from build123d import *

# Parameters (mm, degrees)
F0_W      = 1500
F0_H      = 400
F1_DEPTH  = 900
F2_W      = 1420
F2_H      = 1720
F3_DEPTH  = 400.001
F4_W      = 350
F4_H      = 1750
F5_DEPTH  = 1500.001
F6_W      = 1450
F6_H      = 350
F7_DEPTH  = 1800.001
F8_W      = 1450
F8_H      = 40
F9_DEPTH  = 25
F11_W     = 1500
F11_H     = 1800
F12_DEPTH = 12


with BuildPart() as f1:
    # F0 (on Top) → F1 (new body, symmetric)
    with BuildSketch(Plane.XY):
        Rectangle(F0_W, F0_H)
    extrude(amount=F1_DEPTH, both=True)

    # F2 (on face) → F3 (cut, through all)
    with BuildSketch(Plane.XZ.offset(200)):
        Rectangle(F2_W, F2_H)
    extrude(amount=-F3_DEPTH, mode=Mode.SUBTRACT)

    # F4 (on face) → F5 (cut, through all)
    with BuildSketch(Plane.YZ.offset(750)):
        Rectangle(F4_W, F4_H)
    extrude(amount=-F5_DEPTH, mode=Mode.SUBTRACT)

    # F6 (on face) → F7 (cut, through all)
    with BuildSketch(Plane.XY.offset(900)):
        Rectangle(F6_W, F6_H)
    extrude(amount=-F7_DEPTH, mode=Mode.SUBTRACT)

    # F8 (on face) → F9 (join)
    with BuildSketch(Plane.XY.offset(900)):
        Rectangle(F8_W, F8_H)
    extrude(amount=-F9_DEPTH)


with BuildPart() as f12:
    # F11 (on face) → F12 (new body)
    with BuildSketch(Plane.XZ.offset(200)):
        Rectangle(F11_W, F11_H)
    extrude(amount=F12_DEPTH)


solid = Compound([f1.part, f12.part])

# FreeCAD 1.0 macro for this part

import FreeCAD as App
import Part
import Sketcher
Q = App.Units.Quantity

doc = App.newDocument("Part")
params = doc.addObject("Spreadsheet::Sheet", "Params")
for row, (alias, value) in enumerate([
    ("sketch1_width", "1500 mm"),
    ("sketch1_height", "400 mm"),
    ("pad1_length", "1800 mm"),
    ("sketch2_width", "1420 mm"),
    ("sketch2_height", "1720 mm"),
    ("sketch3_width", "350 mm"),
    ("sketch3_height", "1750 mm"),
    ("sketch4_width", "1450 mm"),
    ("sketch4_height", "350 mm"),
    ("sketch5_width", "1450 mm"),
    ("sketch5_height", "40 mm"),
    ("pad2_length", "25 mm"),
    ("sketch6_width", "1500 mm"),
    ("sketch6_height", "1800 mm"),
    ("pad3_length", "12 mm"),
], start=1):
    params.set(f"A{row}", alias)
    params.set(f"B{row}", "=" + value)
    params.setAlias(f"B{row}", alias)

body = doc.addObject("PartDesign::Body", "Body")

sketch1 = body.newObject("Sketcher::SketchObject", "Sketch")
sketch1.AttachmentSupport = (doc.getObject("XY_Plane"), [""])
sketch1.MapMode = "FlatFace"
sketch1.addGeometry([
    Part.LineSegment(App.Vector(-750, 200, 0), App.Vector(-750, -200, 0)),
    Part.LineSegment(App.Vector(-750, -200, 0), App.Vector(750, -200, 0)),
    Part.LineSegment(App.Vector(750, -200, 0), App.Vector(750, 200, 0)),
    Part.LineSegment(App.Vector(750, 200, 0), App.Vector(-750, 200, 0)),
], False)
sketch1.addConstraint([
    Sketcher.Constraint("Coincident", 0, 2, 1, 1),
    Sketcher.Constraint("Coincident", 1, 2, 2, 1),
    Sketcher.Constraint("Coincident", 2, 2, 3, 1),
    Sketcher.Constraint("Coincident", 3, 2, 0, 1),
    Sketcher.Constraint("Vertical", 0),
    Sketcher.Constraint("Horizontal", 1),
    Sketcher.Constraint("Vertical", 2),
    Sketcher.Constraint("Horizontal", 3),
    Sketcher.Constraint("Symmetric", 0, 2, 2, 2, -1, 1),
    Sketcher.Constraint("DistanceX", 1, 1, 1, 2, Q("1500 mm")),
    Sketcher.Constraint("DistanceY", 0, 2, 0, 1, Q("400 mm")),
])
sketch1.setExpression("Constraints[9]", "Params.sketch1_width")
sketch1.setExpression("Constraints[10]", "Params.sketch1_height")
pad1 = body.newObject("PartDesign::Pad", "Pad")
pad1.Profile = sketch1
pad1.setExpression("Length", "Params.pad1_length")
pad1.Midplane = True

sketch2 = body.newObject("Sketcher::SketchObject", "Sketch001")
sketch2.AttachmentSupport = (doc.getObject("XZ_Plane"), [""])
sketch2.MapMode = "FlatFace"
sketch2.AttachmentOffset = App.Placement(App.Vector(0, 0, 200), App.Rotation())
sketch2.addGeometry([
    Part.LineSegment(App.Vector(-710, 860, 0), App.Vector(-710, -860, 0)),
    Part.LineSegment(App.Vector(-710, -860, 0), App.Vector(710, -860, 0)),
    Part.LineSegment(App.Vector(710, -860, 0), App.Vector(710, 860, 0)),
    Part.LineSegment(App.Vector(710, 860, 0), App.Vector(-710, 860, 0)),
], False)
sketch2.addConstraint([
    Sketcher.Constraint("Coincident", 0, 2, 1, 1),
    Sketcher.Constraint("Coincident", 1, 2, 2, 1),
    Sketcher.Constraint("Coincident", 2, 2, 3, 1),
    Sketcher.Constraint("Coincident", 3, 2, 0, 1),
    Sketcher.Constraint("Vertical", 0),
    Sketcher.Constraint("Horizontal", 1),
    Sketcher.Constraint("Vertical", 2),
    Sketcher.Constraint("Horizontal", 3),
    Sketcher.Constraint("Symmetric", 0, 2, 2, 2, -1, 1),
    Sketcher.Constraint("DistanceX", 1, 1, 1, 2, Q("1420 mm")),
    Sketcher.Constraint("DistanceY", 0, 2, 0, 1, Q("1720 mm")),
])
sketch2.setExpression("Constraints[9]", "Params.sketch2_width")
sketch2.setExpression("Constraints[10]", "Params.sketch2_height")
pocket1 = body.newObject("PartDesign::Pocket", "Pocket")
pocket1.Profile = sketch2
pocket1.Type = "ThroughAll"

sketch3 = body.newObject("Sketcher::SketchObject", "Sketch002")
sketch3.AttachmentSupport = (doc.getObject("YZ_Plane"), [""])
sketch3.MapMode = "FlatFace"
sketch3.AttachmentOffset = App.Placement(App.Vector(0, 0, 750), App.Rotation())
sketch3.addGeometry([
    Part.LineSegment(App.Vector(-175, 875, 0), App.Vector(-175, -875, 0)),
    Part.LineSegment(App.Vector(-175, -875, 0), App.Vector(175, -875, 0)),
    Part.LineSegment(App.Vector(175, -875, 0), App.Vector(175, 875, 0)),
    Part.LineSegment(App.Vector(175, 875, 0), App.Vector(-175, 875, 0)),
], False)
sketch3.addConstraint([
    Sketcher.Constraint("Coincident", 0, 2, 1, 1),
    Sketcher.Constraint("Coincident", 1, 2, 2, 1),
    Sketcher.Constraint("Coincident", 2, 2, 3, 1),
    Sketcher.Constraint("Coincident", 3, 2, 0, 1),
    Sketcher.Constraint("Vertical", 0),
    Sketcher.Constraint("Horizontal", 1),
    Sketcher.Constraint("Vertical", 2),
    Sketcher.Constraint("Horizontal", 3),
    Sketcher.Constraint("Symmetric", 0, 2, 2, 2, -1, 1),
    Sketcher.Constraint("DistanceX", 1, 1, 1, 2, Q("350 mm")),
    Sketcher.Constraint("DistanceY", 0, 2, 0, 1, Q("1750 mm")),
])
sketch3.setExpression("Constraints[9]", "Params.sketch3_width")
sketch3.setExpression("Constraints[10]", "Params.sketch3_height")
pocket2 = body.newObject("PartDesign::Pocket", "Pocket001")
pocket2.Profile = sketch3
pocket2.Type = "ThroughAll"

sketch4 = body.newObject("Sketcher::SketchObject", "Sketch003")
sketch4.AttachmentSupport = (doc.getObject("XY_Plane"), [""])
sketch4.MapMode = "FlatFace"
sketch4.AttachmentOffset = App.Placement(App.Vector(0, 0, 900), App.Rotation())
sketch4.addGeometry([
    Part.LineSegment(App.Vector(-725, 175, 0), App.Vector(-725, -175, 0)),
    Part.LineSegment(App.Vector(-725, -175, 0), App.Vector(725, -175, 0)),
    Part.LineSegment(App.Vector(725, -175, 0), App.Vector(725, 175, 0)),
    Part.LineSegment(App.Vector(725, 175, 0), App.Vector(-725, 175, 0)),
], False)
sketch4.addConstraint([
    Sketcher.Constraint("Coincident", 0, 2, 1, 1),
    Sketcher.Constraint("Coincident", 1, 2, 2, 1),
    Sketcher.Constraint("Coincident", 2, 2, 3, 1),
    Sketcher.Constraint("Coincident", 3, 2, 0, 1),
    Sketcher.Constraint("Vertical", 0),
    Sketcher.Constraint("Horizontal", 1),
    Sketcher.Constraint("Vertical", 2),
    Sketcher.Constraint("Horizontal", 3),
    Sketcher.Constraint("Symmetric", 0, 2, 2, 2, -1, 1),
    Sketcher.Constraint("DistanceX", 1, 1, 1, 2, Q("1450 mm")),
    Sketcher.Constraint("DistanceY", 0, 2, 0, 1, Q("350 mm")),
])
sketch4.setExpression("Constraints[9]", "Params.sketch4_width")
sketch4.setExpression("Constraints[10]", "Params.sketch4_height")
pocket3 = body.newObject("PartDesign::Pocket", "Pocket002")
pocket3.Profile = sketch4
pocket3.Type = "ThroughAll"

sketch5 = body.newObject("Sketcher::SketchObject", "Sketch004")
sketch5.AttachmentSupport = (doc.getObject("XY_Plane"), [""])
sketch5.MapMode = "FlatFace"
sketch5.AttachmentOffset = App.Placement(App.Vector(0, 0, 900), App.Rotation())
sketch5.addGeometry([
    Part.LineSegment(App.Vector(-725, 20, 0), App.Vector(-725, -20, 0)),
    Part.LineSegment(App.Vector(-725, -20, 0), App.Vector(725, -20, 0)),
    Part.LineSegment(App.Vector(725, -20, 0), App.Vector(725, 20, 0)),
    Part.LineSegment(App.Vector(725, 20, 0), App.Vector(-725, 20, 0)),
], False)
sketch5.addConstraint([
    Sketcher.Constraint("Coincident", 0, 2, 1, 1),
    Sketcher.Constraint("Coincident", 1, 2, 2, 1),
    Sketcher.Constraint("Coincident", 2, 2, 3, 1),
    Sketcher.Constraint("Coincident", 3, 2, 0, 1),
    Sketcher.Constraint("Vertical", 0),
    Sketcher.Constraint("Horizontal", 1),
    Sketcher.Constraint("Vertical", 2),
    Sketcher.Constraint("Horizontal", 3),
    Sketcher.Constraint("Symmetric", 0, 2, 2, 2, -1, 1),
    Sketcher.Constraint("DistanceX", 1, 1, 1, 2, Q("1450 mm")),
    Sketcher.Constraint("DistanceY", 0, 2, 0, 1, Q("40 mm")),
])
sketch5.setExpression("Constraints[9]", "Params.sketch5_width")
sketch5.setExpression("Constraints[10]", "Params.sketch5_height")
pad2 = body.newObject("PartDesign::Pad", "Pad001")
pad2.Profile = sketch5
pad2.setExpression("Length", "Params.pad2_length")
pad2.Reversed = True
body2 = doc.addObject("PartDesign::Body", "Body001")

sketch6 = body2.newObject("Sketcher::SketchObject", "Sketch005")
sketch6.AttachmentSupport = (doc.getObject("XZ_Plane001"), [""])
sketch6.MapMode = "FlatFace"
sketch6.AttachmentOffset = App.Placement(App.Vector(0, 0, 200), App.Rotation())
sketch6.addGeometry([
    Part.LineSegment(App.Vector(-750, 900, 0), App.Vector(-750, -900, 0)),
    Part.LineSegment(App.Vector(-750, -900, 0), App.Vector(750, -900, 0)),
    Part.LineSegment(App.Vector(750, -900, 0), App.Vector(750, 900, 0)),
    Part.LineSegment(App.Vector(750, 900, 0), App.Vector(-750, 900, 0)),
], False)
sketch6.addConstraint([
    Sketcher.Constraint("Coincident", 0, 2, 1, 1),
    Sketcher.Constraint("Coincident", 1, 2, 2, 1),
    Sketcher.Constraint("Coincident", 2, 2, 3, 1),
    Sketcher.Constraint("Coincident", 3, 2, 0, 1),
    Sketcher.Constraint("Vertical", 0),
    Sketcher.Constraint("Horizontal", 1),
    Sketcher.Constraint("Vertical", 2),
    Sketcher.Constraint("Horizontal", 3),
    Sketcher.Constraint("Symmetric", 0, 2, 2, 2, -1, 1),
    Sketcher.Constraint("DistanceX", 1, 1, 1, 2, Q("1500 mm")),
    Sketcher.Constraint("DistanceY", 0, 2, 0, 1, Q("1800 mm")),
])
sketch6.setExpression("Constraints[9]", "Params.sketch6_width")
sketch6.setExpression("Constraints[10]", "Params.sketch6_height")
pad3 = body2.newObject("PartDesign::Pad", "Pad002")
pad3.Profile = sketch6
pad3.setExpression("Length", "Params.pad3_length")

doc.recompute()
